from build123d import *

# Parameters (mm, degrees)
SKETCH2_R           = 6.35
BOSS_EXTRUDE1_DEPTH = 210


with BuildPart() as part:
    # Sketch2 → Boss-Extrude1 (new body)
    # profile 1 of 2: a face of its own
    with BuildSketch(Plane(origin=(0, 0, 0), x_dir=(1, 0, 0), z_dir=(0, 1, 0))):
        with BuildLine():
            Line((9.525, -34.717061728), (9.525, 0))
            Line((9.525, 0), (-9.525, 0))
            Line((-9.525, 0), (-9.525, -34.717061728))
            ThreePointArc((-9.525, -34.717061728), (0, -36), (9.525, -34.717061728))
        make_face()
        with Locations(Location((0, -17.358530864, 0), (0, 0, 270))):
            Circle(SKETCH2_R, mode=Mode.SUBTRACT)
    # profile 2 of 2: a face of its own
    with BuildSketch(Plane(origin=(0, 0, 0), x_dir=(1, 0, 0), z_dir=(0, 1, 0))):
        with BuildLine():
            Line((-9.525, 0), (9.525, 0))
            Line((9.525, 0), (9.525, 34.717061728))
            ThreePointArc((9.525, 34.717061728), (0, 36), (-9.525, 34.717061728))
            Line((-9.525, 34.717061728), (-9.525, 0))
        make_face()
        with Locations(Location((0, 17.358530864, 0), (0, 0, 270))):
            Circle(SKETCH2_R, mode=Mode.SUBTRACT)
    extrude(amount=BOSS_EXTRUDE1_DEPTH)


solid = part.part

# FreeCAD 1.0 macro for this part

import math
import FreeCAD as App
import Part
import Sketcher
from FreeCAD import Vector

doc = App.newDocument("Part")
body = doc.addObject("PartDesign::Body", "Body")

# Sketch on XZ plane
sketch1 = doc.addObject("Sketcher::SketchObject", "Sketch")
body.addObject(sketch1)
sketch1.AttachmentSupport = (doc.XZ_Plane, [""])
sketch1.MapMode = "FlatFace"
sketch1.addGeometry([
    Part.LineSegment(Vector(10, 35, 0), Vector(10, -35, 0)),  # 0
    Part.ArcOfCircle(Part.Circle(Vector(0, 0, 0), Vector(0, 0, 1), 36), math.radians(-105), math.radians(-75)),  # 1
    Part.LineSegment(Vector(-10, -35, 0), Vector(-10, 35, 0)),  # 2
    Part.ArcOfCircle(Part.Circle(Vector(0, 0, 0), Vector(0, 0, 1), 36), math.radians(75), math.radians(105)),  # 3
    Part.Circle(Vector(0, 17, 0), Vector(0, 0, 1), 6),  # 4
    Part.Circle(Vector(0, -17, 0), Vector(0, 0, 1), 6),  # 5
], False)
sketch1.addConstraint([
    Sketcher.Constraint("Coincident", 0, 2, 1, 2),
    Sketcher.Constraint("Coincident", 1, 1, 2, 1),
    Sketcher.Constraint("Coincident", 2, 2, 3, 2),
    Sketcher.Constraint("Coincident", 3, 1, 0, 1),
    Sketcher.Constraint("Vertical", 0),
    Sketcher.Constraint("Vertical", 2),
    Sketcher.Constraint("Coincident", 1, 3, -1, 1),
    Sketcher.Constraint("Coincident", 3, 3, -1, 1),
    Sketcher.Constraint("Equal", 1, 3),
    Sketcher.Constraint("Equal", 4, 5),
    Sketcher.Constraint("Symmetric", 4, 3, 5, 3, -1, 1),
    Sketcher.Constraint("PointOnObject", 4, 3, -2),
    Sketcher.Constraint("Horizontal", 0, 2, 1, 1),
    Sketcher.Constraint("Radius", 1, 36.0),
    Sketcher.Constraint("Diameter", 4, 12.7),
    Sketcher.Constraint("DistanceX", 1, 1, 0, 2, 19.05),
    Sketcher.Constraint("DistanceY", -1, 1, 4, 3, 17.358531),
])
pad1 = doc.addObject("PartDesign::Pad", "Pad")
body.addObject(pad1)
pad1.Profile = sketch1
pad1.Length = 210
pad1.Reversed = True

doc.recompute()
